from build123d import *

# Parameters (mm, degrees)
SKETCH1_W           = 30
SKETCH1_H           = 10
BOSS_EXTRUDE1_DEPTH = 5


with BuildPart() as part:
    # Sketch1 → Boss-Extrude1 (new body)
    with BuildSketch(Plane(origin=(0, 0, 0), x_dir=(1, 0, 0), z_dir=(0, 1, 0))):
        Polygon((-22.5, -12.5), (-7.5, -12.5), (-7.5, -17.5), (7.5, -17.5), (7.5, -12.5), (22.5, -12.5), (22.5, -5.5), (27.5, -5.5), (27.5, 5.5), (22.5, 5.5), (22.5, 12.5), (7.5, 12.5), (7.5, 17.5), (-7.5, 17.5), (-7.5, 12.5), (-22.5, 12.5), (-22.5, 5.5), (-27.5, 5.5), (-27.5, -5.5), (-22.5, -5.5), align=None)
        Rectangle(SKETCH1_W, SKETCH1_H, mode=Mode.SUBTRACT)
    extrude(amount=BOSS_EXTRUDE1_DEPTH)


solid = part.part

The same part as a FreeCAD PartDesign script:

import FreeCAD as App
import Part
import Sketcher

V = App.Vector

doc = App.newDocument("Part")
params = doc.addObject("Spreadsheet::Sheet", "Params")
for row, (alias, value) in enumerate([
    ("sketch1_width", "15 mm"),
    ("sketch1_width2", "5 mm"),
    ("sketch1_width3", "30 mm"),
    ("sketch1_height", "7 mm"),
    ("sketch1_height2", "11 mm"),
    ("pad1_length", "5 mm"),
], start=1):
    params.set(f"A{row}", alias)
    params.set(f"B{row}", "=" + value)
    params.setAlias(f"B{row}", alias)

body = doc.addObject("PartDesign::Body", "Body")

sketch1 = body.newObject("Sketcher::SketchObject", "Sketch")
sketch1.AttachmentSupport = (doc.getObject("XZ_Plane"), [""])
sketch1.MapMode = "FlatFace"
sketch1.addGeometry(Part.LineSegment(V(-22.5, 12.5, 0), V(-7.5, 12.5, 0)), False)
sketch1.addGeometry(Part.LineSegment(V(-7.5, 12.5, 0), V(-7.5, 17.5, 0)), False)
sketch1.addGeometry(Part.LineSegment(V(-7.5, 17.5, 0), V(7.5, 17.5, 0)), False)
sketch1.addGeometry(Part.LineSegment(V(7.5, 17.5, 0), V(7.5, 12.5, 0)), False)
sketch1.addGeometry(Part.LineSegment(V(7.5, 12.5, 0), V(22.5, 12.5, 0)), False)
sketch1.addGeometry(Part.LineSegment(V(22.5, 12.5, 0), V(22.5, 5.5, 0)), False)
sketch1.addGeometry(Part.LineSegment(V(22.5, 5.5, 0), V(27.5, 5.5, 0)), False)
sketch1.addGeometry(Part.LineSegment(V(27.5, 5.5, 0), V(27.5, -5.5, 0)), False)
sketch1.addGeometry(Part.LineSegment(V(27.5, -5.5, 0), V(22.5, -5.5, 0)), False)
sketch1.addGeometry(Part.LineSegment(V(22.5, -5.5, 0), V(22.5, -12.5, 0)), False)
sketch1.addGeometry(Part.LineSegment(V(22.5, -12.5, 0), V(7.5, -12.5, 0)), False)
sketch1.addGeometry(Part.LineSegment(V(7.5, -12.5, 0), V(7.5, -17.5, 0)), False)
sketch1.addGeometry(Part.LineSegment(V(7.5, -17.5, 0), V(-7.5, -17.5, 0)), False)
sketch1.addGeometry(Part.LineSegment(V(-7.5, -17.5, 0), V(-7.5, -12.5, 0)), False)
sketch1.addGeometry(Part.LineSegment(V(-7.5, -12.5, 0), V(-22.5, -12.5, 0)), False)
sketch1.addGeometry(Part.LineSegment(V(-22.5, -12.5, 0), V(-22.5, -5.5, 0)), False)
sketch1.addGeometry(Part.LineSegment(V(-22.5, -5.5, 0), V(-27.5, -5.5, 0)), False)
sketch1.addGeometry(Part.LineSegment(V(-27.5, -5.5, 0), V(-27.5, 5.5, 0)), False)
sketch1.addGeometry(Part.LineSegment(V(-27.5, 5.5, 0), V(-22.5, 5.5, 0)), False)
sketch1.addGeometry(Part.LineSegment(V(-22.5, 5.5, 0), V(-22.5, 12.5, 0)), False)
sketch1.addGeometry(Part.LineSegment(V(15, 5, 0), V(-15, 5, 0)), False)
sketch1.addGeometry(Part.LineSegment(V(-15, 5, 0), V(-15, -5, 0)), False)
sketch1.addGeometry(Part.LineSegment(V(-15, -5, 0), V(15, -5, 0)), False)
sketch1.addGeometry(Part.LineSegment(V(15, -5, 0), V(15, 5, 0)), False)
sketch1.addConstraint(Sketcher.Constraint("Coincident", 0, 2, 1, 1))
sketch1.addConstraint(Sketcher.Constraint("Coincident", 1, 2, 2, 1))
sketch1.addConstraint(Sketcher.Constraint("Coincident", 2, 2, 3, 1))
sketch1.addConstraint(Sketcher.Constraint("Coincident", 3, 2, 4, 1))
sketch1.addConstraint(Sketcher.Constraint("Coincident", 4, 2, 5, 1))
sketch1.addConstraint(Sketcher.Constraint("Coincident", 5, 2, 6, 1))
sketch1.addConstraint(Sketcher.Constraint("Coincident", 6, 2, 7, 1))
sketch1.addConstraint(Sketcher.Constraint("Coincident", 7, 2, 8, 1))
sketch1.addConstraint(Sketcher.Constraint("Coincident", 8, 2, 9, 1))
sketch1.addConstraint(Sketcher.Constraint("Coincident", 9, 2, 10, 1))
sketch1.addConstraint(Sketcher.Constraint("Coincident", 10, 2, 11, 1))
sketch1.addConstraint(Sketcher.Constraint("Coincident", 11, 2, 12, 1))
sketch1.addConstraint(Sketcher.Constraint("Coincident", 12, 2, 13, 1))
sketch1.addConstraint(Sketcher.Constraint("Coincident", 13, 2, 14, 1))
sketch1.addConstraint(Sketcher.Constraint("Coincident", 14, 2, 15, 1))
sketch1.addConstraint(Sketcher.Constraint("Coincident", 15, 2, 16, 1))
sketch1.addConstraint(Sketcher.Constraint("Coincident", 16, 2, 17, 1))
sketch1.addConstraint(Sketcher.Constraint("Coincident", 17, 2, 18, 1))
sketch1.addConstraint(Sketcher.Constraint("Coincident", 18, 2, 19, 1))
sketch1.addConstraint(Sketcher.Constraint("Coincident", 19, 2, 0, 1))
sketch1.addConstraint(Sketcher.Constraint("Coincident", 20, 2, 21, 1))
sketch1.addConstraint(Sketcher.Constraint("Coincident", 21, 2, 22, 1))
sketch1.addConstraint(Sketcher.Constraint("Coincident", 22, 2, 23, 1))
sketch1.addConstraint(Sketcher.Constraint("Coincident", 23, 2, 20, 1))
sketch1.addConstraint(Sketcher.Constraint("Horizontal", 0))
sketch1.addConstraint(Sketcher.Constraint("Vertical", 1))
sketch1.addConstraint(Sketcher.Constraint("Horizontal", 2))
sketch1.addConstraint(Sketcher.Constraint("Vertical", 3))
sketch1.addConstraint(Sketcher.Constraint("Horizontal", 4))
sketch1.addConstraint(Sketcher.Constraint("Vertical", 5))
sketch1.addConstraint(Sketcher.Constraint("Horizontal", 6))
sketch1.addConstraint(Sketcher.Constraint("Vertical", 7))
sketch1.addConstraint(Sketcher.Constraint("Horizontal", 8))
sketch1.addConstraint(Sketcher.Constraint("Vertical", 9))
sketch1.addConstraint(Sketcher.Constraint("Horizontal", 10))
sketch1.addConstraint(Sketcher.Constraint("Vertical", 11))
sketch1.addConstraint(Sketcher.Constraint("Horizontal", 12))
sketch1.addConstraint(Sketcher.Constraint("Vertical", 13))
sketch1.addConstraint(Sketcher.Constraint("Horizontal", 14))
sketch1.addConstraint(Sketcher.Constraint("Vertical", 15))
sketch1.addConstraint(Sketcher.Constraint("Horizontal", 16))
sketch1.addConstraint(Sketcher.Constraint("Vertical", 17))
sketch1.addConstraint(Sketcher.Constraint("Horizontal", 18))
sketch1.addConstraint(Sketcher.Constraint("Vertical", 19))
sketch1.addConstraint(Sketcher.Constraint("Horizontal", 20))
sketch1.addConstraint(Sketcher.Constraint("Vertical", 21))
sketch1.addConstraint(Sketcher.Constraint("Horizontal", 22))
sketch1.addConstraint(Sketcher.Constraint("Vertical", 23))
sketch1.addConstraint(Sketcher.Constraint("Symmetric", 0, 2, 10, 2, -1, 1))
sketch1.addConstraint(Sketcher.Constraint("Symmetric", 2, 2, 12, 2, -1, 1))
sketch1.addConstraint(Sketcher.Constraint("Symmetric", 4, 2, 14, 2, -1, 1))
sketch1.addConstraint(Sketcher.Constraint("Symmetric", 6, 2, 16, 2, -1, 1))
sketch1.addConstraint(Sketcher.Constraint("Symmetric", 8, 2, 18, 2, -1, 1))
sketch1.addConstraint(Sketcher.Constraint("Symmetric", 20, 2, 22, 2, -1, 1))
sketch1.addConstraint(Sketcher.Constraint("Symmetric", 0, 2, 3, 2, -2))
sketch1.addConstraint(Sketcher.Constraint("Symmetric", 8, 2, 15, 2, -2))
sketch1.addConstraint(Sketcher.Constraint("Equal", 0, 2))
sketch1.addConstraint(Sketcher.Constraint("Equal", 18, 1))
sketch1.addConstraint(Sketcher.Constraint("DistanceX", 0, 1, 0, 2, 15.0))
sketch1.addConstraint(Sketcher.Constraint("DistanceX", 6, 1, 6, 2, 5.0))
sketch1.addConstraint(Sketcher.Constraint("DistanceX", 20, 2, 20, 1, 30.0))
sketch1.addConstraint(Sketcher.Constraint("DistanceY", 5, 2, 5, 1, 7.0))
sketch1.addConstraint(Sketcher.Constraint("DistanceY", 7, 2, 7, 1, 11.0))
sketch1.addConstraint(Sketcher.Constraint("DistanceY", 21, 2, 21, 1, 10.0))
sketch1.setExpression("Constraints[58]", "Params.sketch1_width")
sketch1.setExpression("Constraints[59]", "Params.sketch1_width2")
sketch1.setExpression("Constraints[60]", "Params.sketch1_width3")
sketch1.setExpression("Constraints[61]", "Params.sketch1_height")
sketch1.setExpression("Constraints[62]", "Params.sketch1_height2")
pad1 = body.newObject("PartDesign::Pad", "Pad")
pad1.Profile = sketch1
pad1.setExpression("Length", "Params.pad1_length")
pad1.Reversed = True

doc.recompute()
